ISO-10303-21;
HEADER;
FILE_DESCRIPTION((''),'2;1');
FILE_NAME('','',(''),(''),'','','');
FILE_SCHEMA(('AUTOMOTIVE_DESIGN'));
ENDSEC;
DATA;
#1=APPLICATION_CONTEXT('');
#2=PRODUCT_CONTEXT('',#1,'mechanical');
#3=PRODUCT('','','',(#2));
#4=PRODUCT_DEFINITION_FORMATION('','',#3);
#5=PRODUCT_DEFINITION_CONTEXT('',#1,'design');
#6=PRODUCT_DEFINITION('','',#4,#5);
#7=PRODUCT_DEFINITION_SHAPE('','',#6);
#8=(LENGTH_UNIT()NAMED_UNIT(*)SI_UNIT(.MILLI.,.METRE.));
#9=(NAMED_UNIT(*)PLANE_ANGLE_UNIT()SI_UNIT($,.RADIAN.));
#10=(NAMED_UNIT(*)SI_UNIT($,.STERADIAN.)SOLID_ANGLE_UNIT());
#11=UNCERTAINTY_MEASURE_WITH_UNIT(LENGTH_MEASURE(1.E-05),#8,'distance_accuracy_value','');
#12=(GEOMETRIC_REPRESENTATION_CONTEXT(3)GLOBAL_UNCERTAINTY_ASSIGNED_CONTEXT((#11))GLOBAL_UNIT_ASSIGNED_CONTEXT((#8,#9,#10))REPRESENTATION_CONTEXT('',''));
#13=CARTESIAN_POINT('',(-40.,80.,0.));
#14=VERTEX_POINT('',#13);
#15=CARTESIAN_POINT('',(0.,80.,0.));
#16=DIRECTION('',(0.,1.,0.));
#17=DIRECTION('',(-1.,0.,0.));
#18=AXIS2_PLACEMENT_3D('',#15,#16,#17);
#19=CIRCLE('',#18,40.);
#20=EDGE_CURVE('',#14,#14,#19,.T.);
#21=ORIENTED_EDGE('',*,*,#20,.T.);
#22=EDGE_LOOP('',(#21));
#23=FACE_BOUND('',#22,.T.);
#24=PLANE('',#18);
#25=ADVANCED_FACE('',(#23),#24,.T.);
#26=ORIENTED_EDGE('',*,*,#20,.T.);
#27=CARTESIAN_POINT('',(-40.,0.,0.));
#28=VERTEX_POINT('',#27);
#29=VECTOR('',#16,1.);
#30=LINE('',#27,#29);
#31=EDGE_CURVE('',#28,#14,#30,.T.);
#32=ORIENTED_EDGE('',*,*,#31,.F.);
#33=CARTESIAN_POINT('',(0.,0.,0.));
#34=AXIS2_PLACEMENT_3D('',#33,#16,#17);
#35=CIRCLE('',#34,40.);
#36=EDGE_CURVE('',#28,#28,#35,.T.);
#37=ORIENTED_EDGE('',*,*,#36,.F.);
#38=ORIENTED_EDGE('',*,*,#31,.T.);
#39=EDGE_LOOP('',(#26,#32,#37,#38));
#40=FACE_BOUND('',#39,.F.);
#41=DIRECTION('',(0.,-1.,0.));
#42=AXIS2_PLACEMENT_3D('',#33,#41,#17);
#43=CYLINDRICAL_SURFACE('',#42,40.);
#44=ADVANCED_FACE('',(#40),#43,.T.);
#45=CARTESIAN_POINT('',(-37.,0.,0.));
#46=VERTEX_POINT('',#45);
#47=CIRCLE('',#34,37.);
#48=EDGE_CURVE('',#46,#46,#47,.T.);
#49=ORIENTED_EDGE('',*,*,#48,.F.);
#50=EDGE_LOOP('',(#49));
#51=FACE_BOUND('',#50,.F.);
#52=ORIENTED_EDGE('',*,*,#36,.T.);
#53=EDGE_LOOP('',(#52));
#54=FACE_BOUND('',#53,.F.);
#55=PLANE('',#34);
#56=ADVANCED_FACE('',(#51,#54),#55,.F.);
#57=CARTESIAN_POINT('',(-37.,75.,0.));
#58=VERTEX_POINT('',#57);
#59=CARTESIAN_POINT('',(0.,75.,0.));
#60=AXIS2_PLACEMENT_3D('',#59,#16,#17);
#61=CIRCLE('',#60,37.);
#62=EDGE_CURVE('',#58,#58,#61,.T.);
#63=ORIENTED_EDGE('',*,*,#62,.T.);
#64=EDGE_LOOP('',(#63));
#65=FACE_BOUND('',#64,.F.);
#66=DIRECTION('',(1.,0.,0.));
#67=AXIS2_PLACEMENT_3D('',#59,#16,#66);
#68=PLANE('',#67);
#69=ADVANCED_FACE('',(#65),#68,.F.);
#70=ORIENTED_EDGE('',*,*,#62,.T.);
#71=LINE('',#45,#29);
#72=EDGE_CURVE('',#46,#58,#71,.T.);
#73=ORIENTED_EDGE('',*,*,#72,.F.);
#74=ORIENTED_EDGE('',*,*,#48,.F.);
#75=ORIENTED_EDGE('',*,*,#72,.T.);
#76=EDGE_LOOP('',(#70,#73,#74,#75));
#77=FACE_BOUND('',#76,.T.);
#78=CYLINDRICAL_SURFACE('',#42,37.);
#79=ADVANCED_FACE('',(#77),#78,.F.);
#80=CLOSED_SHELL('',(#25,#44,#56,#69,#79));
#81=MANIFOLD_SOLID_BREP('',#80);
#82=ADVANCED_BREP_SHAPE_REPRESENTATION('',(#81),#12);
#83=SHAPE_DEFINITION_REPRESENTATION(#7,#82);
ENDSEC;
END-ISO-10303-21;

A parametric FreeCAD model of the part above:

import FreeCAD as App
import Part
import Sketcher
Q = App.Units.Quantity

doc = App.newDocument("Part")
body = doc.addObject("PartDesign::Body", "Body")

# Sketch on XZ plane
sketch1 = body.newObject("Sketcher::SketchObject", "Sketch")
sketch1.AttachmentSupport = (doc.getObject("XZ_Plane"), [""])
sketch1.MapMode = "FlatFace"
sketch1.addGeometry(Part.Circle(App.Vector(0, 0, 0), App.Vector(0, 0, 1), 40), False)
sketch1.addGeometry(Part.Circle(App.Vector(0, 0, 0), App.Vector(0, 0, 1), 37), False)
sketch1.addConstraint(Sketcher.Constraint("Coincident", 0, 3, -1, 1))
sketch1.addConstraint(Sketcher.Constraint("Coincident", 1, 3, -1, 1))
sketch1.addConstraint(Sketcher.Constraint("Diameter", 0, Q("80 mm")))
sketch1.addConstraint(Sketcher.Constraint("Diameter", 1, Q("74 mm")))
pad1 = body.newObject("PartDesign::Pad", "Pad")
pad1.Profile = sketch1
pad1.Length = 80
pad1.Reversed = True

# Sketch on XZ plane
sketch2 = body.newObject("Sketcher::SketchObject", "Sketch001")
sketch2.AttachmentSupport = (doc.getObject("XZ_Plane"), [""])
sketch2.MapMode = "FlatFace"
sketch2.AttachmentOffset = App.Placement(App.Vector(0, 0, -80), App.Rotation())
sketch2.addGeometry(Part.Circle(App.Vector(0, 0, 0), App.Vector(0, 0, 1), 37), False)
sketch2.addConstraint(Sketcher.Constraint("Coincident", 0, 3, -1, 1))
sketch2.addConstraint(Sketcher.Constraint("Diameter", 0, Q("74 mm")))
pad2 = body.newObject("PartDesign::Pad", "Pad001")
pad2.Profile = sketch2
pad2.Length = 5

doc.recompute()
